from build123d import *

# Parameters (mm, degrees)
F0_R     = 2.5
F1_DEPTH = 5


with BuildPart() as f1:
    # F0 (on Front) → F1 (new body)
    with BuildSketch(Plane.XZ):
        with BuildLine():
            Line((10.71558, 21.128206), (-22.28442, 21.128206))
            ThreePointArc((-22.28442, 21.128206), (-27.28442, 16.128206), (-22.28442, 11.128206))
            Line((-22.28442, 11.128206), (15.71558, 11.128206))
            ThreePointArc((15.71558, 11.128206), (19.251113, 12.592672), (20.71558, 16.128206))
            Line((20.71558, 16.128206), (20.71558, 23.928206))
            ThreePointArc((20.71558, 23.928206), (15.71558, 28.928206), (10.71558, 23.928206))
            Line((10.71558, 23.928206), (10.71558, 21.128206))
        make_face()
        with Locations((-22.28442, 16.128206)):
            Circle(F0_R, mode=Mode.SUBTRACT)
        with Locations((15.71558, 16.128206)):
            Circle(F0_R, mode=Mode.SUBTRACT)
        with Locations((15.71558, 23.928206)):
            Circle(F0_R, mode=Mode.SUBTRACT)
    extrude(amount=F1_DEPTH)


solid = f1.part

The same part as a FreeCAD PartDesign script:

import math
import FreeCAD as App
import Part
import Sketcher
from FreeCAD import Vector
Q = App.Units.Quantity

doc = App.newDocument("Part")
params = doc.addObject("Spreadsheet::Sheet", "Params")
for row, (alias, value) in enumerate([
    ("sketch1_diameter", "5 mm"),
    ("sketch1_radius", "5 mm"),
    ("sketch1_width", "33 mm"),
    ("sketch1_height", "7.8 mm"),
    ("pad1_length", "5 mm"),
], start=1):
    params.set(f"A{row}", alias)
    params.set(f"B{row}", "=" + value)
    params.setAlias(f"B{row}", alias)

body = doc.addObject("PartDesign::Body", "Body")

# Sketch on XZ plane
sketch1 = body.newObject("Sketcher::SketchObject", "Sketch")
sketch1.AttachmentSupport = (doc.getObject("XZ_Plane"), [""])
sketch1.MapMode = "FlatFace"
sketch1.addGeometry([
    Part.LineSegment(Vector(10.71558, 21.128206, 0), Vector(-22.28442, 21.128206, 0)),  # 0
    Part.ArcOfCircle(Part.Circle(Vector(-22.28442, 16.128206, 0), Vector(0, 0, 1), 5), math.radians(90), math.radians(270)),  # 1
    Part.LineSegment(Vector(-22.28442, 11.128206, 0), Vector(15.71558, 11.128206, 0)),  # 2
    Part.ArcOfCircle(Part.Circle(Vector(15.715579, 16.128207, 0), Vector(0, 0, 1), 5.000001), math.radians(-89.999984), math.radians(-0.000016)),  # 3
    Part.LineSegment(Vector(20.71558, 16.128206, 0), Vector(20.71558, 23.928206, 0)),  # 4
    Part.ArcOfCircle(Part.Circle(Vector(15.71558, 23.928206, 0), Vector(0, 0, 1), 5), math.radians(0), math.radians(180)),  # 5
    Part.LineSegment(Vector(10.71558, 23.928206, 0), Vector(10.71558, 21.128206, 0)),  # 6
    Part.Circle(Vector(-22.28442, 16.128206, 0), Vector(0, 0, 1), 2.5),  # 7
    Part.Circle(Vector(15.71558, 16.128206, 0), Vector(0, 0, 1), 2.5),  # 8
    Part.Circle(Vector(15.71558, 23.928206, 0), Vector(0, 0, 1), 2.5),  # 9
], False)
sketch1.addConstraint([
    Sketcher.Constraint("Tangent", 0, 2, 1, 1),
    Sketcher.Constraint("Tangent", 1, 2, 2, 1),
    Sketcher.Constraint("Tangent", 2, 2, 3, 1),
    Sketcher.Constraint("Tangent", 3, 2, 4, 1),
    Sketcher.Constraint("Tangent", 4, 2, 5, 1),
    Sketcher.Constraint("Tangent", 5, 2, 6, 1),
    Sketcher.Constraint("Coincident", 6, 2, 0, 1),
    Sketcher.Constraint("Horizontal", 0),
    Sketcher.Constraint("Horizontal", 2),
    Sketcher.Constraint("Vertical", 4),
    Sketcher.Constraint("Vertical", 6),
    Sketcher.Constraint("Coincident", 7, 3, 1, 3),
    Sketcher.Constraint("Coincident", 8, 3, 3, 3),
    Sketcher.Constraint("Coincident", 9, 3, 5, 3),
    Sketcher.Constraint("Equal", 1, 3),
    Sketcher.Constraint("Equal", 3, 5),
    Sketcher.Constraint("Equal", 7, 8),
    Sketcher.Constraint("Equal", 8, 9),
    Sketcher.Constraint("Diameter", 7, Q("5 mm")),
    Sketcher.Constraint("Radius", 1, Q("5 mm")),
    Sketcher.Constraint("DistanceX", 0, 2, 0, 1, Q("33 mm")),
    Sketcher.Constraint("DistanceY", 4, 1, 4, 2, Q("7.8 mm")),
    Sketcher.Constraint("DistanceX", 1, 3, -1, 1, Q("22.28442 mm")),
    Sketcher.Constraint("DistanceY", -1, 1, 1, 3, Q("16.128206 mm")),
])
sketch1.setExpression("Constraints[18]", "Params.sketch1_diameter")
sketch1.setExpression("Constraints[19]", "Params.sketch1_radius")
sketch1.setExpression("Constraints[20]", "Params.sketch1_width")
sketch1.setExpression("Constraints[21]", "Params.sketch1_height")
pad1 = body.newObject("PartDesign::Pad", "Pad")
pad1.Profile = sketch1
pad1.setExpression("Length", "Params.pad1_length")

doc.recompute()
